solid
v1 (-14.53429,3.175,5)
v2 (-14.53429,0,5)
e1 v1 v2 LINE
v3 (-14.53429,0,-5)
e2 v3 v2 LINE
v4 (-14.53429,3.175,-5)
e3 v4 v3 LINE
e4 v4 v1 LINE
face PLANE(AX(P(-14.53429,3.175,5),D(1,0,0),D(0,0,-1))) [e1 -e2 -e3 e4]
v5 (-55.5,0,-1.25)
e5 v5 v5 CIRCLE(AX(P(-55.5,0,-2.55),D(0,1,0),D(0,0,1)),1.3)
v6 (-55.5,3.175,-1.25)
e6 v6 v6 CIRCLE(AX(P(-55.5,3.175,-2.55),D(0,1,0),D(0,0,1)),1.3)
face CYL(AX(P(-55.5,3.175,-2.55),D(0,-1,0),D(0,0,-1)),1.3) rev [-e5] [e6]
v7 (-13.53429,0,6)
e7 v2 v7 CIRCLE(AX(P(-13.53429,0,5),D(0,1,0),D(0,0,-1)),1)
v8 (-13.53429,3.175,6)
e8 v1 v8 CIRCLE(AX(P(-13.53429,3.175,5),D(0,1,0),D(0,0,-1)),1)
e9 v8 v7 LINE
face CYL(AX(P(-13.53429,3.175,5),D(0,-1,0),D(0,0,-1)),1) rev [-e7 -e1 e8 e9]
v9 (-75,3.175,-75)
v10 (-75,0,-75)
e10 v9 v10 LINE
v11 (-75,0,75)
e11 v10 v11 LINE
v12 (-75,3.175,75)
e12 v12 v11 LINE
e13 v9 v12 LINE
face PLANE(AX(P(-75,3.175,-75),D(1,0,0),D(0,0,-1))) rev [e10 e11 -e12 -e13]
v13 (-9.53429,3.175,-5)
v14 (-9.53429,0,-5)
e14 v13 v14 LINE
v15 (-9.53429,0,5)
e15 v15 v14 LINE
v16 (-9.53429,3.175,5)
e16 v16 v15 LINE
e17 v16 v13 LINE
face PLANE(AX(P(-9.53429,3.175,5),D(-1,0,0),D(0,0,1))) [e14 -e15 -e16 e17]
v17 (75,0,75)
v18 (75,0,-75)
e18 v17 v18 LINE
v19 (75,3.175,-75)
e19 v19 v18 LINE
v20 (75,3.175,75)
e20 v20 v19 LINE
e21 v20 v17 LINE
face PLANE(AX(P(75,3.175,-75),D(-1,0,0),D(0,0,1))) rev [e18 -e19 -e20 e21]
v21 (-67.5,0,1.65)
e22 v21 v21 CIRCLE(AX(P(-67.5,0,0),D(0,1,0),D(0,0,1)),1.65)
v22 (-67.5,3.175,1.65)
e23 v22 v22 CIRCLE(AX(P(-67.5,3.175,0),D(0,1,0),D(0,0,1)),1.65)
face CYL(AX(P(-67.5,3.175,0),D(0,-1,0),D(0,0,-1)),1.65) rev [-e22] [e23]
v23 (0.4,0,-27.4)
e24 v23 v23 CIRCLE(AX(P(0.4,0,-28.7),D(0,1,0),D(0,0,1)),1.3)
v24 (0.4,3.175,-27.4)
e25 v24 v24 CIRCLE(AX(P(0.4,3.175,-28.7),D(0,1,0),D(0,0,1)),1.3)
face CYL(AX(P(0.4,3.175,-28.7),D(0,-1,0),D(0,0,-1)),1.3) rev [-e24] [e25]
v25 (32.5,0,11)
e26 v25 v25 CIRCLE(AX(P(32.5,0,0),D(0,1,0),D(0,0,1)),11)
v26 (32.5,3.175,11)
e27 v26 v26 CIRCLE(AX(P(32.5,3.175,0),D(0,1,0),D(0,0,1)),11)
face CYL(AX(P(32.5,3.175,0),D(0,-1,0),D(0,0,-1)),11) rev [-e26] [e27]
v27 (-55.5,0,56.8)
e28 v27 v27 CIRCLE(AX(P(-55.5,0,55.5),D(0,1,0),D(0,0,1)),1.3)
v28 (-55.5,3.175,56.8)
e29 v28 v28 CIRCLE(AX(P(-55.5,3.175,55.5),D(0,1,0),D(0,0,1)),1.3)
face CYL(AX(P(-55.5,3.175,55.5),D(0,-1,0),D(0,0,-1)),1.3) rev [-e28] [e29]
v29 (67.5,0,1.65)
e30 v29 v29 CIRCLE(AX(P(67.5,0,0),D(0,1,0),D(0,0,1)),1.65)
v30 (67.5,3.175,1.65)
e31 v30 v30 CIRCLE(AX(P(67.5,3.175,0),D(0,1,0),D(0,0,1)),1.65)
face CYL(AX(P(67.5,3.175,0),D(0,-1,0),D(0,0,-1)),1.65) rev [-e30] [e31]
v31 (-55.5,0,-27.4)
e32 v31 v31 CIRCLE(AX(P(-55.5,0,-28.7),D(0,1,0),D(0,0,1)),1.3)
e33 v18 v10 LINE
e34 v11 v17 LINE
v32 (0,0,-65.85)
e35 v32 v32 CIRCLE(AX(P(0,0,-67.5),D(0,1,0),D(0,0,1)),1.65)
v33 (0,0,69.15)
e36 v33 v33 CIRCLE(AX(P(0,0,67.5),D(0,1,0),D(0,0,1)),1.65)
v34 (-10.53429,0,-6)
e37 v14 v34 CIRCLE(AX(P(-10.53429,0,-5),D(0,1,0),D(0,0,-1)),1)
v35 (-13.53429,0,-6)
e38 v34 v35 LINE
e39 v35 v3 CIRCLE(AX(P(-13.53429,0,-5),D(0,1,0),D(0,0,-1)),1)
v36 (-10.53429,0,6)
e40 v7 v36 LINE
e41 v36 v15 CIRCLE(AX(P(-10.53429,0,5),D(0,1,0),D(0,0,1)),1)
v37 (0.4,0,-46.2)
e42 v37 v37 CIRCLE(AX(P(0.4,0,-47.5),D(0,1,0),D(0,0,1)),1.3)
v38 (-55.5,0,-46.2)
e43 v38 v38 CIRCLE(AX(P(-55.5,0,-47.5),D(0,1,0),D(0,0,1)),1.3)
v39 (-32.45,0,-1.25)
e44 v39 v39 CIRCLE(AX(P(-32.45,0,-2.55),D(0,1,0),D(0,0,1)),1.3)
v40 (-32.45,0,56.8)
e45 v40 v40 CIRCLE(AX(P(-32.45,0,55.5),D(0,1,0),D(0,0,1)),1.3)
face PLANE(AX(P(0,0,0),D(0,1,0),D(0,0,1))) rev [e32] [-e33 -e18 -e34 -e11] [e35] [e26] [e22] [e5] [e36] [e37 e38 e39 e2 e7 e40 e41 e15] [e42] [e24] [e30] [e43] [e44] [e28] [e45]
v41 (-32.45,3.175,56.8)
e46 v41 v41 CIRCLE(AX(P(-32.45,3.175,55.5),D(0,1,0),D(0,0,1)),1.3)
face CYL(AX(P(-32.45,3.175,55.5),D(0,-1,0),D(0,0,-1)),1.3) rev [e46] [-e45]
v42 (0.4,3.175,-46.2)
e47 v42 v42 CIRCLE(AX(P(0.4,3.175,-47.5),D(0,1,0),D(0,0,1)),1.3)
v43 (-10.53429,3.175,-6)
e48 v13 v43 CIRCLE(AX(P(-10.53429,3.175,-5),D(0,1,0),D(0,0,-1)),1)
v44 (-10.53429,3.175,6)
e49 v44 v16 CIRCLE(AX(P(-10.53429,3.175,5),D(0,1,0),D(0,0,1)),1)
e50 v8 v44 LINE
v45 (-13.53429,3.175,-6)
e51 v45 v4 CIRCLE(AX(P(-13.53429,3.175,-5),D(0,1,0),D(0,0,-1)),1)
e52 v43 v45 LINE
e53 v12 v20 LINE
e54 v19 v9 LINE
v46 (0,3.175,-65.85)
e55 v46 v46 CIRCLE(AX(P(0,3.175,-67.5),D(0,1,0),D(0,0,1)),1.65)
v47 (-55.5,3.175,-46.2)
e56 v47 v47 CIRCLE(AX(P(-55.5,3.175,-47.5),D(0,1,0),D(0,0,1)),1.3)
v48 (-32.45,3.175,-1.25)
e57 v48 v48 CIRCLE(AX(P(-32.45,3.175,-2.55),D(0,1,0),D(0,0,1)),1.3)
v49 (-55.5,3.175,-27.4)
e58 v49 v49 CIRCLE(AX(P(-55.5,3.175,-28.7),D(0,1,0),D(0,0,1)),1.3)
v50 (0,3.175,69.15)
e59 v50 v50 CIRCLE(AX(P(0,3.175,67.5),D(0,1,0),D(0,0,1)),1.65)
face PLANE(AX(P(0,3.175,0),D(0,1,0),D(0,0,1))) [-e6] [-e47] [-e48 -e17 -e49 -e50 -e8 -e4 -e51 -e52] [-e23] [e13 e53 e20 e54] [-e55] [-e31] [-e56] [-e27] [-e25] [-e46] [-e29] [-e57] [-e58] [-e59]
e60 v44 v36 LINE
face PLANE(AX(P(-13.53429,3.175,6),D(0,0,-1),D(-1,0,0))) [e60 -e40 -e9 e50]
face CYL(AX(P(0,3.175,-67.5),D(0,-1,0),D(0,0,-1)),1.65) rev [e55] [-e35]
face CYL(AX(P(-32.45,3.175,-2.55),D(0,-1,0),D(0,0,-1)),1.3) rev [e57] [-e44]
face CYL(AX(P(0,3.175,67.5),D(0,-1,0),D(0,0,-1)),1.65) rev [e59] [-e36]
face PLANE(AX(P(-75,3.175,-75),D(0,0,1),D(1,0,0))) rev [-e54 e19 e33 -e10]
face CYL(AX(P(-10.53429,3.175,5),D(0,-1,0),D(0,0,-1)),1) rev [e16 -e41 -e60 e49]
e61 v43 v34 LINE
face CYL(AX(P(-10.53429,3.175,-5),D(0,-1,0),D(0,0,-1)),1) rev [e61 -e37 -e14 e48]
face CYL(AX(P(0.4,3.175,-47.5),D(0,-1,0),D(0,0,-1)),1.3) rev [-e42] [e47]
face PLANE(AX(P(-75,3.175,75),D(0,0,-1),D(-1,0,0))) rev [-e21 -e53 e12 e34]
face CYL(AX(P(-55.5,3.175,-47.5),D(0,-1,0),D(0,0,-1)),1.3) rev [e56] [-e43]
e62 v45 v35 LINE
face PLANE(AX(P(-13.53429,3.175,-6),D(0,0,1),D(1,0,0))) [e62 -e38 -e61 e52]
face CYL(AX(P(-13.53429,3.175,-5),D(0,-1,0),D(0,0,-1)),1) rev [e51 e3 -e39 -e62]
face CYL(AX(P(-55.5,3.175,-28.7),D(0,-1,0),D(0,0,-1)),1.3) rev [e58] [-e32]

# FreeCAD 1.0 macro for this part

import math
import FreeCAD as App
import Part
import Sketcher

V = App.Vector


def add_polygon(sketch, points):
    """Adds a closed chain of lines whose ends are joined by coincident constraints."""
    first, n = sketch.GeometryCount, len(points)
    for a, b in zip(points, points[1:] + points[:1]):
        sketch.addGeometry(Part.LineSegment(App.Vector(*a, 0), App.Vector(*b, 0)), False)
    for i in range(n):
        sketch.addConstraint(Sketcher.Constraint("Coincident", first + i, 2, first + (i + 1) % n, 1))

doc = App.newDocument("Part")
body = doc.addObject("PartDesign::Body", "Body")

# Sketch on XZ plane
sketch1 = doc.addObject("Sketcher::SketchObject", "Sketch")
body.addObject(sketch1)
sketch1.AttachmentSupport = (doc.XZ_Plane, [""])
sketch1.MapMode = "FlatFace"
add_polygon(sketch1, [(-75, -75), (-75, 75), (75, 75), (75, -75)])  # lines 0-3
sketch1.addGeometry(Part.Circle(V(-55.5, 55.5, 0), V(0, 0, 1), 1.3), False)  # 4
sketch1.addGeometry(Part.Circle(V(-32.5, 55.5, 0), V(0, 0, 1), 1.3), False)  # 5
sketch1.addGeometry(Part.Circle(V(0, 67.5, 0), V(0, 0, 1), 1.6), False)  # 6
sketch1.addGeometry(Part.Circle(V(-67.5, 0, 0), V(0, 0, 1), 1.6), False)  # 7
sketch1.addGeometry(Part.Circle(V(-55.5, -2.5, 0), V(0, 0, 1), 1.3), False)  # 8
sketch1.addGeometry(Part.Circle(V(-55.5, -28.7, 0), V(0, 0, 1), 1.3), False)  # 9
sketch1.addGeometry(Part.Circle(V(-32.5, -2.5, 0), V(0, 0, 1), 1.3), False)  # 10
sketch1.addGeometry(Part.LineSegment(V(-10.5, 6, 0), V(-13.5, 6, 0)), False)  # 11
sketch1.addGeometry(Part.ArcOfCircle(Part.Circle(V(-13.5, 5, 0), V(0, 0, 1), 1), math.radians(90), math.radians(180)), False)  # 12
sketch1.addGeometry(Part.LineSegment(V(-14.5, 5, 0), V(-14.5, -5, 0)), False)  # 13
sketch1.addGeometry(Part.ArcOfCircle(Part.Circle(V(-13.5, -5, 0), V(0, 0, 1), 1), math.radians(-180), math.radians(-90)), False)  # 14
sketch1.addGeometry(Part.LineSegment(V(-13.5, -6, 0), V(-10.5, -6, 0)), False)  # 15
sketch1.addGeometry(Part.ArcOfCircle(Part.Circle(V(-10.5, -5, 0), V(0, 0, 1), 1), math.radians(-90), math.radians(0)), False)  # 16
sketch1.addGeometry(Part.LineSegment(V(-9.5, -5, 0), V(-9.5, 5, 0)), False)  # 17
sketch1.addGeometry(Part.ArcOfCircle(Part.Circle(V(-10.5, 5, 0), V(0, 0, 1), 1), math.radians(0), math.radians(90)), False)  # 18
sketch1.addGeometry(Part.Circle(V(-55.5, -47.5, 0), V(0, 0, 1), 1.3), False)  # 19
sketch1.addGeometry(Part.Circle(V(32.5, 0, 0), V(0, 0, 1), 11), False)  # 20
sketch1.addGeometry(Part.Circle(V(0.4, -28.7, 0), V(0, 0, 1), 1.3), False)  # 21
sketch1.addGeometry(Part.Circle(V(67.5, 0, 0), V(0, 0, 1), 1.6), False)  # 22
sketch1.addGeometry(Part.Circle(V(0.4, -47.5, 0), V(0, 0, 1), 1.3), False)  # 23
sketch1.addGeometry(Part.Circle(V(0, -67.5, 0), V(0, 0, 1), 1.6), False)  # 24
sketch1.addConstraint(Sketcher.Constraint("Tangent", 11, 2, 12, 1))
sketch1.addConstraint(Sketcher.Constraint("Tangent", 12, 2, 13, 1))
sketch1.addConstraint(Sketcher.Constraint("Tangent", 13, 2, 14, 1))
sketch1.addConstraint(Sketcher.Constraint("Tangent", 14, 2, 15, 1))
sketch1.addConstraint(Sketcher.Constraint("Tangent", 15, 2, 16, 1))
sketch1.addConstraint(Sketcher.Constraint("Tangent", 16, 2, 17, 1))
sketch1.addConstraint(Sketcher.Constraint("Tangent", 17, 2, 18, 1))
sketch1.addConstraint(Sketcher.Constraint("Tangent", 18, 2, 11, 1))
sketch1.addConstraint(Sketcher.Constraint("Vertical", 0))
sketch1.addConstraint(Sketcher.Constraint("Horizontal", 1))
sketch1.addConstraint(Sketcher.Constraint("Vertical", 2))
sketch1.addConstraint(Sketcher.Constraint("Horizontal", 3))
sketch1.addConstraint(Sketcher.Constraint("Horizontal", 11))
sketch1.addConstraint(Sketcher.Constraint("Vertical", 13))
sketch1.addConstraint(Sketcher.Constraint("Horizontal", 15))
sketch1.addConstraint(Sketcher.Constraint("Vertical", 17))
sketch1.addConstraint(Sketcher.Constraint("Equal", 4, 5))
sketch1.addConstraint(Sketcher.Constraint("Equal", 6, 7))
sketch1.addConstraint(Sketcher.Constraint("Equal", 5, 8))
sketch1.addConstraint(Sketcher.Constraint("Equal", 8, 9))
sketch1.addConstraint(Sketcher.Constraint("Equal", 9, 10))
sketch1.addConstraint(Sketcher.Constraint("Equal", 12, 14))
sketch1.addConstraint(Sketcher.Constraint("Equal", 14, 16))
sketch1.addConstraint(Sketcher.Constraint("Equal", 16, 18))
sketch1.addConstraint(Sketcher.Constraint("Equal", 10, 19))
sketch1.addConstraint(Sketcher.Constraint("Equal", 19, 21))
sketch1.addConstraint(Sketcher.Constraint("Equal", 7, 22))
sketch1.addConstraint(Sketcher.Constraint("Equal", 21, 23))
sketch1.addConstraint(Sketcher.Constraint("Equal", 22, 24))
sketch1.addConstraint(Sketcher.Constraint("Symmetric", 7, 3, 22, 3, -1, 1))
sketch1.addConstraint(Sketcher.Constraint("Symmetric", 6, 3, 24, 3, -1, 1))
sketch1.addConstraint(Sketcher.Constraint("Symmetric", 0, 2, 2, 2, -1, 1))
sketch1.addConstraint(Sketcher.Constraint("PointOnObject", 6, 3, -2))
sketch1.addConstraint(Sketcher.Constraint("PointOnObject", 7, 3, -1))
sketch1.addConstraint(Sketcher.Constraint("PointOnObject", 20, 3, -1))
sketch1.addConstraint(Sketcher.Constraint("Horizontal", 4, 3, 5, 3))
sketch1.addConstraint(Sketcher.Constraint("Horizontal", 8, 3, 10, 3))
sketch1.addConstraint(Sketcher.Constraint("Horizontal", 9, 3, 21, 3))
sketch1.addConstraint(Sketcher.Constraint("Horizontal", 19, 3, 23, 3))
sketch1.addConstraint(Sketcher.Constraint("Vertical", 4, 3, 8, 3))
sketch1.addConstraint(Sketcher.Constraint("Vertical", 8, 3, 9, 3))
sketch1.addConstraint(Sketcher.Constraint("Vertical", 5, 3, 10, 3))
sketch1.addConstraint(Sketcher.Constraint("Vertical", 9, 3, 19, 3))
sketch1.addConstraint(Sketcher.Constraint("Vertical", 21, 3, 23, 3))
sketch1.addConstraint(Sketcher.Constraint("Equal", 3, 0))
sketch1.addConstraint(Sketcher.Constraint("Diameter", 20, 22.0))
sketch1.addConstraint(Sketcher.Constraint("Radius", 12, 1.0))
sketch1.addConstraint(Sketcher.Constraint("Diameter", 4, 2.6))
sketch1.addConstraint(Sketcher.Constraint("Diameter", 6, 3.3))
sketch1.addConstraint(Sketcher.Constraint("DistanceX", 1, 1, 1, 2, 150.0))
sketch1.addConstraint(Sketcher.Constraint("DistanceX", 11, 2, 11, 1, 3.0))
sketch1.addConstraint(Sketcher.Constraint("DistanceY", 13, 2, 13, 1, 10.0))
sketch1.addConstraint(Sketcher.Constraint("DistanceY", -1, 1, 12, 3, 5.0))
sketch1.addConstraint(Sketcher.Constraint("DistanceY", 5, 3, 6, 3, 12.0))
sketch1.addConstraint(Sketcher.Constraint("DistanceX", 7, 3, 4, 3, 12.0))
sketch1.addConstraint(Sketcher.Constraint("DistanceX", 20, 3, 22, 3, 35.0))
sketch1.addConstraint(Sketcher.Constraint("DistanceY", 24, 3, 23, 3, 20.0))
sketch1.addConstraint(Sketcher.Constraint("DistanceX", 4, 3, -1, 1, 55.5))
sketch1.addConstraint(Sketcher.Constraint("DistanceY", -1, 1, 4, 3, 55.5))
sketch1.addConstraint(Sketcher.Constraint("DistanceY", 9, 3, -1, 1, 28.7))
sketch1.addConstraint(Sketcher.Constraint("DistanceX", -1, 1, 21, 3, 0.4))
sketch1.addConstraint(Sketcher.Constraint("DistanceX", 5, 3, -1, 1, 32.45))
sketch1.addConstraint(Sketcher.Constraint("DistanceY", 8, 3, -1, 1, 2.55))
sketch1.addConstraint(Sketcher.Constraint("DistanceX", 12, 3, -1, 1, 13.53429))
pad1 = doc.addObject("PartDesign::Pad", "Pad")
body.addObject(pad1)
pad1.Profile = sketch1
pad1.Length = 3.175
pad1.Reversed = True

doc.recompute()
